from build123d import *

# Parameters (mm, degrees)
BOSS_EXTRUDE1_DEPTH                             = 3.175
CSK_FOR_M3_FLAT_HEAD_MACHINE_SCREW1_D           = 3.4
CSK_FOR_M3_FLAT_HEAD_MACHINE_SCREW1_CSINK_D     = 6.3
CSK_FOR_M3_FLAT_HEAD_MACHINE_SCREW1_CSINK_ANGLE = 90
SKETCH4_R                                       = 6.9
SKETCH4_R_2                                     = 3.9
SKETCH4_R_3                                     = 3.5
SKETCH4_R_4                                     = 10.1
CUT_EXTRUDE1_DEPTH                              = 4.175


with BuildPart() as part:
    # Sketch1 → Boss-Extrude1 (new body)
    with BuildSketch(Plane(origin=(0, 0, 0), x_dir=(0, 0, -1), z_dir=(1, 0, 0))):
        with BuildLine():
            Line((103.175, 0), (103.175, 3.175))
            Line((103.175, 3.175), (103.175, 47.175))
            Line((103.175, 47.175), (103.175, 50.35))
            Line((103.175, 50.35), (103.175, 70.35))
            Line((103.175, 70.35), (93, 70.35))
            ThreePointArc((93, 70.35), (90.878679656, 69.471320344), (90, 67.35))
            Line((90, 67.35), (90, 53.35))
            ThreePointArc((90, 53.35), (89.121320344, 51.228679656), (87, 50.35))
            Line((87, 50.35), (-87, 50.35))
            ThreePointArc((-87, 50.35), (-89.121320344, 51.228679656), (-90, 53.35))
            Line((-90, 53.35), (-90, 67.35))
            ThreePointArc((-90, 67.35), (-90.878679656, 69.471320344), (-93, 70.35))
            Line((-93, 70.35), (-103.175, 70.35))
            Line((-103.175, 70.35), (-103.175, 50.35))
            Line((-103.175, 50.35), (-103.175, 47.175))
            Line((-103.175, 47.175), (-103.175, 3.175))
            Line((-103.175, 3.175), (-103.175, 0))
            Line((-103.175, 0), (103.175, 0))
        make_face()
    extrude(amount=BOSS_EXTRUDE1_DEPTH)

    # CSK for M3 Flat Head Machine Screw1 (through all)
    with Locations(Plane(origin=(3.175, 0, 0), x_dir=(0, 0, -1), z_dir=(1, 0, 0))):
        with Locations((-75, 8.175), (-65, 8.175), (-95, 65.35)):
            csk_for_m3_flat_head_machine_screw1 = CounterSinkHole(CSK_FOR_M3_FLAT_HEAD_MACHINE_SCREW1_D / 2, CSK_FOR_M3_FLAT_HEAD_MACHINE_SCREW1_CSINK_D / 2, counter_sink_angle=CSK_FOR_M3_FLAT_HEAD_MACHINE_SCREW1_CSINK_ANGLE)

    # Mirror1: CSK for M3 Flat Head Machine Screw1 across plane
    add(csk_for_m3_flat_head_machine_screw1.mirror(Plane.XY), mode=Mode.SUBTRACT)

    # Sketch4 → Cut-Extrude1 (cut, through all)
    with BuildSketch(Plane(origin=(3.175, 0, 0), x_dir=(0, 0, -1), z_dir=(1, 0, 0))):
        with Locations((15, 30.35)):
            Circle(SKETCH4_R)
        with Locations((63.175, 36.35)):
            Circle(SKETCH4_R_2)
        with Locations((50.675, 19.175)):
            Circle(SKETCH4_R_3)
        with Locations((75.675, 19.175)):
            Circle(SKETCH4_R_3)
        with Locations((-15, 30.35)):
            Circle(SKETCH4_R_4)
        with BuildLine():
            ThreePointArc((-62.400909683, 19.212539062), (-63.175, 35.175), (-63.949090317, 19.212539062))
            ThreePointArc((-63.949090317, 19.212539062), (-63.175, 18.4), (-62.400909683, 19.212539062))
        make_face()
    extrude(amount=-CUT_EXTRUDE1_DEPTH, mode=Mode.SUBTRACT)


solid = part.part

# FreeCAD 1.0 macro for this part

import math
import FreeCAD as App
import Part
import Sketcher
Q = App.Units.Quantity

doc = App.newDocument("Part")
body = doc.addObject("PartDesign::Body", "Body")

# Sketch on YZ plane
sketch1 = body.newObject("Sketcher::SketchObject", "Sketch")
sketch1.AttachmentSupport = (doc.getObject("YZ_Plane"), [""])
sketch1.MapMode = "FlatFace"
sketch1.addGeometry(Part.LineSegment(App.Vector(0, -103.2, 0), App.Vector(70.3, -103.2, 0)), False)
sketch1.addGeometry(Part.LineSegment(App.Vector(70.3, -103.2, 0), App.Vector(70.3, -93, 0)), False)
sketch1.addGeometry(Part.ArcOfCircle(Part.Circle(App.Vector(67.4, -93, 0), App.Vector(0, 0, 1), 3), math.radians(0), math.radians(90)), False)
sketch1.addGeometry(Part.LineSegment(App.Vector(67.3, -90, 0), App.Vector(53.4, -90, 0)), False)
sketch1.addGeometry(Part.ArcOfCircle(Part.Circle(App.Vector(53.3, -87, 0), App.Vector(0, 0, 1), 3), math.radians(180), math.radians(270)), False)
sketch1.addGeometry(Part.LineSegment(App.Vector(50.4, -87, 0), App.Vector(50.4, 87, 0)), False)
sketch1.addGeometry(Part.ArcOfCircle(Part.Circle(App.Vector(53.3, 87, 0), App.Vector(0, 0, 1), 3), math.radians(90), math.radians(180)), False)
sketch1.addGeometry(Part.LineSegment(App.Vector(53.4, 90, 0), App.Vector(67.3, 90, 0)), False)
sketch1.addGeometry(Part.ArcOfCircle(Part.Circle(App.Vector(67.4, 93, 0), App.Vector(0, 0, 1), 3), math.radians(-90), math.radians(0)), False)
sketch1.addGeometry(Part.LineSegment(App.Vector(70.3, 93, 0), App.Vector(70.3, 103.2, 0)), False)
sketch1.addGeometry(Part.LineSegment(App.Vector(70.3, 103.2, 0), App.Vector(0, 103.2, 0)), False)
sketch1.addGeometry(Part.LineSegment(App.Vector(0, 103.2, 0), App.Vector(0, -103.2, 0)), False)
sketch1.addConstraint(Sketcher.Constraint("Coincident", 0, 2, 1, 1))
sketch1.addConstraint(Sketcher.Constraint("Tangent", 1, 2, 2, 1))
sketch1.addConstraint(Sketcher.Constraint("Tangent", 2, 2, 3, 1))
sketch1.addConstraint(Sketcher.Constraint("Tangent", 3, 2, 4, 2))
sketch1.addConstraint(Sketcher.Constraint("Tangent", 4, 1, 5, 1))
sketch1.addConstraint(Sketcher.Constraint("Tangent", 5, 2, 6, 2))
sketch1.addConstraint(Sketcher.Constraint("Tangent", 6, 1, 7, 1))
sketch1.addConstraint(Sketcher.Constraint("Tangent", 7, 2, 8, 1))
sketch1.addConstraint(Sketcher.Constraint("Tangent", 8, 2, 9, 1))
sketch1.addConstraint(Sketcher.Constraint("Coincident", 9, 2, 10, 1))
sketch1.addConstraint(Sketcher.Constraint("Coincident", 10, 2, 11, 1))
sketch1.addConstraint(Sketcher.Constraint("Coincident", 11, 2, 0, 1))
sketch1.addConstraint(Sketcher.Constraint("Horizontal", 0))
sketch1.addConstraint(Sketcher.Constraint("Vertical", 1))
sketch1.addConstraint(Sketcher.Constraint("Horizontal", 3))
sketch1.addConstraint(Sketcher.Constraint("Vertical", 5))
sketch1.addConstraint(Sketcher.Constraint("Horizontal", 7))
sketch1.addConstraint(Sketcher.Constraint("Vertical", 9))
sketch1.addConstraint(Sketcher.Constraint("Horizontal", 10))
sketch1.addConstraint(Sketcher.Constraint("Vertical", 11))
sketch1.addConstraint(Sketcher.Constraint("Equal", 2, 4))
sketch1.addConstraint(Sketcher.Constraint("Equal", 4, 6))
sketch1.addConstraint(Sketcher.Constraint("Equal", 6, 8))
sketch1.addConstraint(Sketcher.Constraint("Symmetric", 10, 2, 11, 2, -1, 1))
sketch1.addConstraint(Sketcher.Constraint("Symmetric", 2, 3, 8, 3, -1))
sketch1.addConstraint(Sketcher.Constraint("Radius", 2, Q("3 mm")))
sketch1.addConstraint(Sketcher.Constraint("DistanceX", 3, 2, 3, 1, Q("14 mm")))
sketch1.addConstraint(Sketcher.Constraint("DistanceY", 5, 1, 5, 2, Q("174 mm")))
sketch1.addConstraint(Sketcher.Constraint("DistanceX", 0, 1, 0, 2, Q("70.35 mm")))
sketch1.addConstraint(Sketcher.Constraint("DistanceY", 11, 2, 11, 1, Q("206.35 mm")))
pad1 = body.newObject("PartDesign::Pad", "Pad")
pad1.Profile = sketch1
pad1.Length = 3.175

# Sketch on YZ plane
sketch2 = body.newObject("Sketcher::SketchObject", "Sketch001")
sketch2.AttachmentSupport = (doc.getObject("YZ_Plane"), [""])
sketch2.MapMode = "FlatFace"
sketch2.AttachmentOffset = App.Placement(App.Vector(0, 0, 3.175), App.Rotation())
sketch2.addGeometry(Part.Circle(App.Vector(8.2, 75, 0), App.Vector(0, 0, 1), 1.7), False)
sketch2.addGeometry(Part.Circle(App.Vector(8.2, 65, 0), App.Vector(0, 0, 1), 1.7), False)
sketch2.addGeometry(Part.Circle(App.Vector(65.3, 95, 0), App.Vector(0, 0, 1), 1.7), False)
sketch2.addConstraint(Sketcher.Constraint("Equal", 0, 1))
sketch2.addConstraint(Sketcher.Constraint("Equal", 1, 2))
sketch2.addConstraint(Sketcher.Constraint("Vertical", 0, 3, 1, 3))
sketch2.addConstraint(Sketcher.Constraint("Diameter", 0, Q("3.4 mm")))
sketch2.addConstraint(Sketcher.Constraint("DistanceY", -1, 1, 0, 3, Q("75 mm")))
sketch2.addConstraint(Sketcher.Constraint("DistanceY", -1, 1, 1, 3, Q("65 mm")))
sketch2.addConstraint(Sketcher.Constraint("DistanceY", -1, 1, 2, 3, Q("95 mm")))
sketch2.addConstraint(Sketcher.Constraint("DistanceX", -1, 1, 2, 3, Q("65.35 mm")))
sketch2.addConstraint(Sketcher.Constraint("DistanceX", -1, 1, 0, 3, Q("8.175 mm")))
doc.recompute()
hole = body.newObject("PartDesign::Hole", "Hole")
hole.Profile = sketch2
hole.ThreadType = "None"
hole.Diameter = 3.4
hole.DepthType = "ThroughAll"
hole.HoleCutType = "Countersink"
hole.HoleCutDiameter = 6.3
hole.HoleCutCountersinkAngle = 90
doc.recompute()

mirrored = body.newObject("PartDesign::Mirrored", "Mirrored")
mirrored.Originals = [hole]
mirrored.MirrorPlane = (doc.getObject("XY_Plane"), [""])
body.Tip = mirrored

# Sketch on YZ plane
sketch3 = body.newObject("Sketcher::SketchObject", "Sketch002")
sketch3.AttachmentSupport = (doc.getObject("YZ_Plane"), [""])
sketch3.MapMode = "FlatFace"
sketch3.AttachmentOffset = App.Placement(App.Vector(0, 0, 3.175), App.Rotation())
sketch3.addGeometry(Part.Circle(App.Vector(30.4, -15, 0), App.Vector(0, 0, 1), 6.9), False)
sketch3.addGeometry(Part.Circle(App.Vector(36.4, -63.2, 0), App.Vector(0, 0, 1), 3.9), False)
sketch3.addGeometry(Part.Circle(App.Vector(19.2, -50.7, 0), App.Vector(0, 0, 1), 3.5), False)
sketch3.addGeometry(Part.Circle(App.Vector(19.2, -75.7, 0), App.Vector(0, 0, 1), 3.5), False)
sketch3.addGeometry(Part.Circle(App.Vector(30.4, 15, 0), App.Vector(0, 0, 1), 10.1), False)
sketch3.addGeometry(Part.ArcOfCircle(Part.Circle(App.Vector(27.2, 63.2, 0), App.Vector(0, 0, 1), 8), math.radians(-174), math.radians(174)), False)
sketch3.addGeometry(Part.ArcOfCircle(Part.Circle(App.Vector(19.2, 63.2, 0), App.Vector(0, 0, 1), 0.8), math.radians(87), math.radians(273)), False)
sketch3.addConstraint(Sketcher.Constraint("Coincident", 5, 1, 6, 2))
sketch3.addConstraint(Sketcher.Constraint("Coincident", 6, 1, 5, 2))
sketch3.addConstraint(Sketcher.Constraint("Equal", 2, 3))
sketch3.addConstraint(Sketcher.Constraint("Symmetric", 0, 3, 4, 3, -1))
sketch3.addConstraint(Sketcher.Constraint("Horizontal", 5, 3, 6, 3))
sketch3.addConstraint(Sketcher.Constraint("Vertical", 2, 3, 3, 3))
sketch3.addConstraint(Sketcher.Constraint("Vertical", 3, 3, 6, 3))
sketch3.addConstraint(Sketcher.Constraint("Diameter", 2, Q("7 mm")))
sketch3.addConstraint(Sketcher.Constraint("Radius", 5, Q("8 mm")))
sketch3.addConstraint(Sketcher.Constraint("Diameter", 0, Q("13.8 mm")))
sketch3.addConstraint(Sketcher.Constraint("Diameter", 1, Q("7.8 mm")))
sketch3.addConstraint(Sketcher.Constraint("Diameter", 4, Q("20.2 mm")))
sketch3.addConstraint(Sketcher.Constraint("DistanceY", 0, 3, -1, 1, Q("15 mm")))
sketch3.addConstraint(Sketcher.Constraint("Radius", 6, Q("0.775 mm")))
sketch3.addConstraint(Sketcher.Constraint("DistanceX", 0, 3, 1, 3, Q("6 mm")))
sketch3.addConstraint(Sketcher.Constraint("DistanceY", 3, 3, 2, 3, Q("25 mm")))
sketch3.addConstraint(Sketcher.Constraint("DistanceX", 2, 3, 5, 3, Q("8 mm")))
sketch3.addConstraint(Sketcher.Constraint("DistanceY", 1, 3, 2, 3, Q("12.5 mm")))
sketch3.addConstraint(Sketcher.Constraint("DistanceX", -1, 1, 0, 3, Q("30.35 mm")))
sketch3.addConstraint(Sketcher.Constraint("DistanceY", 2, 3, 5, 3, Q("113.85 mm")))
sketch3.addConstraint(Sketcher.Constraint("DistanceY", 1, 3, -1, 1, Q("63.175 mm")))
sketch3.addConstraint(Sketcher.Constraint("DistanceX", -1, 1, 2, 3, Q("19.175 mm")))
pocket1 = body.newObject("PartDesign::Pocket", "Pocket")
pocket1.Profile = sketch3
pocket1.Type = "ThroughAll"

doc.recompute()
